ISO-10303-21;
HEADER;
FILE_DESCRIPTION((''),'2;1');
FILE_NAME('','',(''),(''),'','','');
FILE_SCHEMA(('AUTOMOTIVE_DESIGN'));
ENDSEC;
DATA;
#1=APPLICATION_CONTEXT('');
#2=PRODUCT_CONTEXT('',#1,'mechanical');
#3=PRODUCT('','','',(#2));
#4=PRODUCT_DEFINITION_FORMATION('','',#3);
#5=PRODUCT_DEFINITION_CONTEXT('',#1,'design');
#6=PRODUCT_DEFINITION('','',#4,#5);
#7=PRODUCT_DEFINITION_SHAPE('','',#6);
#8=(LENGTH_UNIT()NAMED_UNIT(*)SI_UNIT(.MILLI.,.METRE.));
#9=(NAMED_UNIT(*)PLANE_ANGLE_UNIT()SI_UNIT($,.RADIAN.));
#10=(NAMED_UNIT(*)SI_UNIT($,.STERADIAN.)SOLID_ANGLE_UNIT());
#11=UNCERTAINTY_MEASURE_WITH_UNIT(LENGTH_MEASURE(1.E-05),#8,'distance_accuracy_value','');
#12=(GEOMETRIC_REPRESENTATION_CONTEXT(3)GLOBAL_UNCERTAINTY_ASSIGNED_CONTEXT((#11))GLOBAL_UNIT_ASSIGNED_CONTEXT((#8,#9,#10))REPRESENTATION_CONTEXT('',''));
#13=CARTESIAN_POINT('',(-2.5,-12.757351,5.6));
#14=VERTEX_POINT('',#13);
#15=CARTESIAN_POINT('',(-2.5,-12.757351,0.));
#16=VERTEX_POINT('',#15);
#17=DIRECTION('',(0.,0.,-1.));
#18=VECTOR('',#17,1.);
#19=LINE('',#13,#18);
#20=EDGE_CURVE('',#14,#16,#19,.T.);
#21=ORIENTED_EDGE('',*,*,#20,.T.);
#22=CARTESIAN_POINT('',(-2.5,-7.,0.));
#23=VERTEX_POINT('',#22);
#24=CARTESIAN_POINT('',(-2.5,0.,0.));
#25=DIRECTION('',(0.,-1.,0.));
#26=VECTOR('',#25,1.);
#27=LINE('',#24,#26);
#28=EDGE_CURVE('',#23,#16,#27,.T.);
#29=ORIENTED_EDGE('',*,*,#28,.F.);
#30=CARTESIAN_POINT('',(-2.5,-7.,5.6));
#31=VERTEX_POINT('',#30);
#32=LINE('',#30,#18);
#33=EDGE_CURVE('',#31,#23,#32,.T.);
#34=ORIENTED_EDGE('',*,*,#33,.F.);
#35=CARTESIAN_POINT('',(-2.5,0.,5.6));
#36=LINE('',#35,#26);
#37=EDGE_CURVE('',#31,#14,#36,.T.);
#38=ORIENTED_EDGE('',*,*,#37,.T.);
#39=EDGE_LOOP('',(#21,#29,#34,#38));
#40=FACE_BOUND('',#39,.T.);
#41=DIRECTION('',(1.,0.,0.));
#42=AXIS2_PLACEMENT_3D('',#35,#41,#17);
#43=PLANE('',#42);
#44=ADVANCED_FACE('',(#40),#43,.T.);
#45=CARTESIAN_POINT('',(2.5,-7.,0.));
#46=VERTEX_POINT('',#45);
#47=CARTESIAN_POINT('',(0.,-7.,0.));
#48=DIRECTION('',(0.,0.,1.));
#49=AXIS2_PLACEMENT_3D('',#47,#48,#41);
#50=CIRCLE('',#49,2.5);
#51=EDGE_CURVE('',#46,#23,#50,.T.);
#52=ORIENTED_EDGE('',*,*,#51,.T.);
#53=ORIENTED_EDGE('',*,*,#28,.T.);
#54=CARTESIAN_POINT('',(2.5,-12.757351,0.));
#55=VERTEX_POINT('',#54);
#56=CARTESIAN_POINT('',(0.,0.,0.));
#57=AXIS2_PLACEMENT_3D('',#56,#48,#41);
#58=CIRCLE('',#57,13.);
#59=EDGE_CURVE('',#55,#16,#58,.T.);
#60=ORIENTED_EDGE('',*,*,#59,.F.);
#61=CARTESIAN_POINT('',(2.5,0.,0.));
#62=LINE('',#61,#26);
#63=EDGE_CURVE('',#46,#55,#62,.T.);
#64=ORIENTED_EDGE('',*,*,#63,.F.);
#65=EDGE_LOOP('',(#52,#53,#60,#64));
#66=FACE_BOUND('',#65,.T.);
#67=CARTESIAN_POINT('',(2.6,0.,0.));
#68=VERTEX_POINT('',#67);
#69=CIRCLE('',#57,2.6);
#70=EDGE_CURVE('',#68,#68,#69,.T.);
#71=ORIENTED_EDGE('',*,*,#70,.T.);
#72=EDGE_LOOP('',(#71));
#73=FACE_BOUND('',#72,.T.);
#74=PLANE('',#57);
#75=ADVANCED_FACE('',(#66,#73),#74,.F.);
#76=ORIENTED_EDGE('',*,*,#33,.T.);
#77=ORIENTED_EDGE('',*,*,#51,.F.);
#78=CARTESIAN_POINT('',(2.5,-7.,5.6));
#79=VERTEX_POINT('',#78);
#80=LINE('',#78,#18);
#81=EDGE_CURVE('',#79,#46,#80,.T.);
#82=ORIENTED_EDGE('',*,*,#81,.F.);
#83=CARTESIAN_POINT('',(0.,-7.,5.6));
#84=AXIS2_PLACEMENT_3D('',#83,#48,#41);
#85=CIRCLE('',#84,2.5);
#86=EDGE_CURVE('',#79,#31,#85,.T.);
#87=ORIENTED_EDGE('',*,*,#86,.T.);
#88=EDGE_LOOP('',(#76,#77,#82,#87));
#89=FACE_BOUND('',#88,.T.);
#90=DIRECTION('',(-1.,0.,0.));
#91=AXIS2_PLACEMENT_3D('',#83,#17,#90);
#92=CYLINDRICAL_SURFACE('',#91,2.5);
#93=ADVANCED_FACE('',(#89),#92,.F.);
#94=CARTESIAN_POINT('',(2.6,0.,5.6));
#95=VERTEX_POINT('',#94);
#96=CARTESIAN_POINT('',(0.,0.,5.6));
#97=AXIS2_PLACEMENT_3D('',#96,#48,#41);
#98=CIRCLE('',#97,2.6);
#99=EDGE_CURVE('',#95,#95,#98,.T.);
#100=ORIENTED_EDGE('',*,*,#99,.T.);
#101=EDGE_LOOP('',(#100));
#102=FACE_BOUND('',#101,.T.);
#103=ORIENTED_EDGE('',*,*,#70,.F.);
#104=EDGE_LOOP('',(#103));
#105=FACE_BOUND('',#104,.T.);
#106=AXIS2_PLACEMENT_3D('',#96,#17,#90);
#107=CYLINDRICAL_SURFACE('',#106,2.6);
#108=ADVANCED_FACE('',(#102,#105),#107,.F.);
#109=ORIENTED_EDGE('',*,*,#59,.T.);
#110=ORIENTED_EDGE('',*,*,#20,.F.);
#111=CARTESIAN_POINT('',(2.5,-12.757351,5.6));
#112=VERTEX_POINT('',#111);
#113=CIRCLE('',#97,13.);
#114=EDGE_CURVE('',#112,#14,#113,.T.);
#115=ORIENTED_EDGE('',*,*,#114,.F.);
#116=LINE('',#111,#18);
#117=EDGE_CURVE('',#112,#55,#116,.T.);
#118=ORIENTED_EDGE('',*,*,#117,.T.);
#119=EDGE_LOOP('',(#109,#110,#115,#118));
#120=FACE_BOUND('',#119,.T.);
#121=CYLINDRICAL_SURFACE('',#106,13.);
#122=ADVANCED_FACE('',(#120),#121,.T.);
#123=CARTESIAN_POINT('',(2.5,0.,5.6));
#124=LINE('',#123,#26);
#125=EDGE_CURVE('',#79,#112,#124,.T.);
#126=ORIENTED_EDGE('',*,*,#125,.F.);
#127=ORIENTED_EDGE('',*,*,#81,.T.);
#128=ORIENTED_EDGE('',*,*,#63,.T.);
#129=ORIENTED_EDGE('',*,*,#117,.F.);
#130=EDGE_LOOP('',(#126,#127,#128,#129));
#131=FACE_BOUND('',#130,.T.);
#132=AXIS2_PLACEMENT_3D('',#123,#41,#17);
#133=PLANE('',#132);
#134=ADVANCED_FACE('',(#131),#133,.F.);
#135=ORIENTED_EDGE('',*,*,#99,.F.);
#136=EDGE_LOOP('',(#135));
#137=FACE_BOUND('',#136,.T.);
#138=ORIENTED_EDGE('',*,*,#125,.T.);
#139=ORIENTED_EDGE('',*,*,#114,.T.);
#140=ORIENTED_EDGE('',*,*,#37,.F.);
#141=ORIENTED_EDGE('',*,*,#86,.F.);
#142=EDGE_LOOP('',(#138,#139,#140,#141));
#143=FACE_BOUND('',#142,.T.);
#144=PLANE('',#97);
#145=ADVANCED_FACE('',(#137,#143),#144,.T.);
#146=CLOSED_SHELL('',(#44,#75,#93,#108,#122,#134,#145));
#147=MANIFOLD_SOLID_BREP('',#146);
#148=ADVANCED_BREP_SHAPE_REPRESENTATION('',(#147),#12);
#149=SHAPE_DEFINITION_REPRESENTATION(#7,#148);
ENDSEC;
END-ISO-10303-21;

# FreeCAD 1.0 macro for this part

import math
import FreeCAD as App
import Part
import Sketcher

V = App.Vector
Q = App.Units.Quantity

doc = App.newDocument("Part")
body = doc.addObject("PartDesign::Body", "Body")

sketch1 = body.newObject("Sketcher::SketchObject", "Sketch")
sketch1.AttachmentSupport = (doc.getObject("XY_Plane"), [""])
sketch1.MapMode = "FlatFace"
sketch1.addGeometry([
    Part.LineSegment(V(-2.5, -12.8, 0), V(-2.5, -7, 0)),
    Part.ArcOfCircle(Part.Circle(V(0, -7, 0), V(0, 0, 1), 2.5), math.radians(0), math.radians(180)),
    Part.LineSegment(V(2.5, -7, 0), V(2.5, -12.8, 0)),
    Part.ArcOfCircle(Part.Circle(V(0, 0, 0), V(0, 0, 1), 13), math.radians(-79), math.radians(0)),
    Part.ArcOfCircle(Part.Circle(V(0, 0, 0), V(0, 0, 1), 13), math.radians(0), math.radians(259)),
    Part.Circle(V(0, 0, 0), V(0, 0, 1), 2.6),
], False)
sketch1.addConstraint([
    Sketcher.Constraint("Tangent", 0, 2, 1, 2),
    Sketcher.Constraint("Tangent", 1, 1, 2, 1),
    Sketcher.Constraint("Coincident", 2, 2, 3, 1),
    Sketcher.Constraint("Tangent", 3, 2, 4, 1),
    Sketcher.Constraint("Coincident", 4, 2, 0, 1),
    Sketcher.Constraint("Vertical", 0),
    Sketcher.Constraint("Vertical", 2),
    Sketcher.Constraint("Coincident", 3, 3, -1, 1),
    Sketcher.Constraint("Coincident", 5, 3, -1, 1),
    Sketcher.Constraint("Equal", 3, 4),
    Sketcher.Constraint("PointOnObject", 1, 3, -2),
    Sketcher.Constraint("PointOnObject", 3, 2, -1),
    Sketcher.Constraint("Radius", 3, Q("13 mm")),
    Sketcher.Constraint("Diameter", 5, Q("5.2 mm")),
    Sketcher.Constraint("Radius", 1, Q("2.5 mm")),
    Sketcher.Constraint("DistanceY", 1, 3, -1, 1, Q("7 mm")),
])
pad1 = body.newObject("PartDesign::Pad", "Pad")
pad1.Profile = sketch1
pad1.Length = 5.6

doc.recompute()
